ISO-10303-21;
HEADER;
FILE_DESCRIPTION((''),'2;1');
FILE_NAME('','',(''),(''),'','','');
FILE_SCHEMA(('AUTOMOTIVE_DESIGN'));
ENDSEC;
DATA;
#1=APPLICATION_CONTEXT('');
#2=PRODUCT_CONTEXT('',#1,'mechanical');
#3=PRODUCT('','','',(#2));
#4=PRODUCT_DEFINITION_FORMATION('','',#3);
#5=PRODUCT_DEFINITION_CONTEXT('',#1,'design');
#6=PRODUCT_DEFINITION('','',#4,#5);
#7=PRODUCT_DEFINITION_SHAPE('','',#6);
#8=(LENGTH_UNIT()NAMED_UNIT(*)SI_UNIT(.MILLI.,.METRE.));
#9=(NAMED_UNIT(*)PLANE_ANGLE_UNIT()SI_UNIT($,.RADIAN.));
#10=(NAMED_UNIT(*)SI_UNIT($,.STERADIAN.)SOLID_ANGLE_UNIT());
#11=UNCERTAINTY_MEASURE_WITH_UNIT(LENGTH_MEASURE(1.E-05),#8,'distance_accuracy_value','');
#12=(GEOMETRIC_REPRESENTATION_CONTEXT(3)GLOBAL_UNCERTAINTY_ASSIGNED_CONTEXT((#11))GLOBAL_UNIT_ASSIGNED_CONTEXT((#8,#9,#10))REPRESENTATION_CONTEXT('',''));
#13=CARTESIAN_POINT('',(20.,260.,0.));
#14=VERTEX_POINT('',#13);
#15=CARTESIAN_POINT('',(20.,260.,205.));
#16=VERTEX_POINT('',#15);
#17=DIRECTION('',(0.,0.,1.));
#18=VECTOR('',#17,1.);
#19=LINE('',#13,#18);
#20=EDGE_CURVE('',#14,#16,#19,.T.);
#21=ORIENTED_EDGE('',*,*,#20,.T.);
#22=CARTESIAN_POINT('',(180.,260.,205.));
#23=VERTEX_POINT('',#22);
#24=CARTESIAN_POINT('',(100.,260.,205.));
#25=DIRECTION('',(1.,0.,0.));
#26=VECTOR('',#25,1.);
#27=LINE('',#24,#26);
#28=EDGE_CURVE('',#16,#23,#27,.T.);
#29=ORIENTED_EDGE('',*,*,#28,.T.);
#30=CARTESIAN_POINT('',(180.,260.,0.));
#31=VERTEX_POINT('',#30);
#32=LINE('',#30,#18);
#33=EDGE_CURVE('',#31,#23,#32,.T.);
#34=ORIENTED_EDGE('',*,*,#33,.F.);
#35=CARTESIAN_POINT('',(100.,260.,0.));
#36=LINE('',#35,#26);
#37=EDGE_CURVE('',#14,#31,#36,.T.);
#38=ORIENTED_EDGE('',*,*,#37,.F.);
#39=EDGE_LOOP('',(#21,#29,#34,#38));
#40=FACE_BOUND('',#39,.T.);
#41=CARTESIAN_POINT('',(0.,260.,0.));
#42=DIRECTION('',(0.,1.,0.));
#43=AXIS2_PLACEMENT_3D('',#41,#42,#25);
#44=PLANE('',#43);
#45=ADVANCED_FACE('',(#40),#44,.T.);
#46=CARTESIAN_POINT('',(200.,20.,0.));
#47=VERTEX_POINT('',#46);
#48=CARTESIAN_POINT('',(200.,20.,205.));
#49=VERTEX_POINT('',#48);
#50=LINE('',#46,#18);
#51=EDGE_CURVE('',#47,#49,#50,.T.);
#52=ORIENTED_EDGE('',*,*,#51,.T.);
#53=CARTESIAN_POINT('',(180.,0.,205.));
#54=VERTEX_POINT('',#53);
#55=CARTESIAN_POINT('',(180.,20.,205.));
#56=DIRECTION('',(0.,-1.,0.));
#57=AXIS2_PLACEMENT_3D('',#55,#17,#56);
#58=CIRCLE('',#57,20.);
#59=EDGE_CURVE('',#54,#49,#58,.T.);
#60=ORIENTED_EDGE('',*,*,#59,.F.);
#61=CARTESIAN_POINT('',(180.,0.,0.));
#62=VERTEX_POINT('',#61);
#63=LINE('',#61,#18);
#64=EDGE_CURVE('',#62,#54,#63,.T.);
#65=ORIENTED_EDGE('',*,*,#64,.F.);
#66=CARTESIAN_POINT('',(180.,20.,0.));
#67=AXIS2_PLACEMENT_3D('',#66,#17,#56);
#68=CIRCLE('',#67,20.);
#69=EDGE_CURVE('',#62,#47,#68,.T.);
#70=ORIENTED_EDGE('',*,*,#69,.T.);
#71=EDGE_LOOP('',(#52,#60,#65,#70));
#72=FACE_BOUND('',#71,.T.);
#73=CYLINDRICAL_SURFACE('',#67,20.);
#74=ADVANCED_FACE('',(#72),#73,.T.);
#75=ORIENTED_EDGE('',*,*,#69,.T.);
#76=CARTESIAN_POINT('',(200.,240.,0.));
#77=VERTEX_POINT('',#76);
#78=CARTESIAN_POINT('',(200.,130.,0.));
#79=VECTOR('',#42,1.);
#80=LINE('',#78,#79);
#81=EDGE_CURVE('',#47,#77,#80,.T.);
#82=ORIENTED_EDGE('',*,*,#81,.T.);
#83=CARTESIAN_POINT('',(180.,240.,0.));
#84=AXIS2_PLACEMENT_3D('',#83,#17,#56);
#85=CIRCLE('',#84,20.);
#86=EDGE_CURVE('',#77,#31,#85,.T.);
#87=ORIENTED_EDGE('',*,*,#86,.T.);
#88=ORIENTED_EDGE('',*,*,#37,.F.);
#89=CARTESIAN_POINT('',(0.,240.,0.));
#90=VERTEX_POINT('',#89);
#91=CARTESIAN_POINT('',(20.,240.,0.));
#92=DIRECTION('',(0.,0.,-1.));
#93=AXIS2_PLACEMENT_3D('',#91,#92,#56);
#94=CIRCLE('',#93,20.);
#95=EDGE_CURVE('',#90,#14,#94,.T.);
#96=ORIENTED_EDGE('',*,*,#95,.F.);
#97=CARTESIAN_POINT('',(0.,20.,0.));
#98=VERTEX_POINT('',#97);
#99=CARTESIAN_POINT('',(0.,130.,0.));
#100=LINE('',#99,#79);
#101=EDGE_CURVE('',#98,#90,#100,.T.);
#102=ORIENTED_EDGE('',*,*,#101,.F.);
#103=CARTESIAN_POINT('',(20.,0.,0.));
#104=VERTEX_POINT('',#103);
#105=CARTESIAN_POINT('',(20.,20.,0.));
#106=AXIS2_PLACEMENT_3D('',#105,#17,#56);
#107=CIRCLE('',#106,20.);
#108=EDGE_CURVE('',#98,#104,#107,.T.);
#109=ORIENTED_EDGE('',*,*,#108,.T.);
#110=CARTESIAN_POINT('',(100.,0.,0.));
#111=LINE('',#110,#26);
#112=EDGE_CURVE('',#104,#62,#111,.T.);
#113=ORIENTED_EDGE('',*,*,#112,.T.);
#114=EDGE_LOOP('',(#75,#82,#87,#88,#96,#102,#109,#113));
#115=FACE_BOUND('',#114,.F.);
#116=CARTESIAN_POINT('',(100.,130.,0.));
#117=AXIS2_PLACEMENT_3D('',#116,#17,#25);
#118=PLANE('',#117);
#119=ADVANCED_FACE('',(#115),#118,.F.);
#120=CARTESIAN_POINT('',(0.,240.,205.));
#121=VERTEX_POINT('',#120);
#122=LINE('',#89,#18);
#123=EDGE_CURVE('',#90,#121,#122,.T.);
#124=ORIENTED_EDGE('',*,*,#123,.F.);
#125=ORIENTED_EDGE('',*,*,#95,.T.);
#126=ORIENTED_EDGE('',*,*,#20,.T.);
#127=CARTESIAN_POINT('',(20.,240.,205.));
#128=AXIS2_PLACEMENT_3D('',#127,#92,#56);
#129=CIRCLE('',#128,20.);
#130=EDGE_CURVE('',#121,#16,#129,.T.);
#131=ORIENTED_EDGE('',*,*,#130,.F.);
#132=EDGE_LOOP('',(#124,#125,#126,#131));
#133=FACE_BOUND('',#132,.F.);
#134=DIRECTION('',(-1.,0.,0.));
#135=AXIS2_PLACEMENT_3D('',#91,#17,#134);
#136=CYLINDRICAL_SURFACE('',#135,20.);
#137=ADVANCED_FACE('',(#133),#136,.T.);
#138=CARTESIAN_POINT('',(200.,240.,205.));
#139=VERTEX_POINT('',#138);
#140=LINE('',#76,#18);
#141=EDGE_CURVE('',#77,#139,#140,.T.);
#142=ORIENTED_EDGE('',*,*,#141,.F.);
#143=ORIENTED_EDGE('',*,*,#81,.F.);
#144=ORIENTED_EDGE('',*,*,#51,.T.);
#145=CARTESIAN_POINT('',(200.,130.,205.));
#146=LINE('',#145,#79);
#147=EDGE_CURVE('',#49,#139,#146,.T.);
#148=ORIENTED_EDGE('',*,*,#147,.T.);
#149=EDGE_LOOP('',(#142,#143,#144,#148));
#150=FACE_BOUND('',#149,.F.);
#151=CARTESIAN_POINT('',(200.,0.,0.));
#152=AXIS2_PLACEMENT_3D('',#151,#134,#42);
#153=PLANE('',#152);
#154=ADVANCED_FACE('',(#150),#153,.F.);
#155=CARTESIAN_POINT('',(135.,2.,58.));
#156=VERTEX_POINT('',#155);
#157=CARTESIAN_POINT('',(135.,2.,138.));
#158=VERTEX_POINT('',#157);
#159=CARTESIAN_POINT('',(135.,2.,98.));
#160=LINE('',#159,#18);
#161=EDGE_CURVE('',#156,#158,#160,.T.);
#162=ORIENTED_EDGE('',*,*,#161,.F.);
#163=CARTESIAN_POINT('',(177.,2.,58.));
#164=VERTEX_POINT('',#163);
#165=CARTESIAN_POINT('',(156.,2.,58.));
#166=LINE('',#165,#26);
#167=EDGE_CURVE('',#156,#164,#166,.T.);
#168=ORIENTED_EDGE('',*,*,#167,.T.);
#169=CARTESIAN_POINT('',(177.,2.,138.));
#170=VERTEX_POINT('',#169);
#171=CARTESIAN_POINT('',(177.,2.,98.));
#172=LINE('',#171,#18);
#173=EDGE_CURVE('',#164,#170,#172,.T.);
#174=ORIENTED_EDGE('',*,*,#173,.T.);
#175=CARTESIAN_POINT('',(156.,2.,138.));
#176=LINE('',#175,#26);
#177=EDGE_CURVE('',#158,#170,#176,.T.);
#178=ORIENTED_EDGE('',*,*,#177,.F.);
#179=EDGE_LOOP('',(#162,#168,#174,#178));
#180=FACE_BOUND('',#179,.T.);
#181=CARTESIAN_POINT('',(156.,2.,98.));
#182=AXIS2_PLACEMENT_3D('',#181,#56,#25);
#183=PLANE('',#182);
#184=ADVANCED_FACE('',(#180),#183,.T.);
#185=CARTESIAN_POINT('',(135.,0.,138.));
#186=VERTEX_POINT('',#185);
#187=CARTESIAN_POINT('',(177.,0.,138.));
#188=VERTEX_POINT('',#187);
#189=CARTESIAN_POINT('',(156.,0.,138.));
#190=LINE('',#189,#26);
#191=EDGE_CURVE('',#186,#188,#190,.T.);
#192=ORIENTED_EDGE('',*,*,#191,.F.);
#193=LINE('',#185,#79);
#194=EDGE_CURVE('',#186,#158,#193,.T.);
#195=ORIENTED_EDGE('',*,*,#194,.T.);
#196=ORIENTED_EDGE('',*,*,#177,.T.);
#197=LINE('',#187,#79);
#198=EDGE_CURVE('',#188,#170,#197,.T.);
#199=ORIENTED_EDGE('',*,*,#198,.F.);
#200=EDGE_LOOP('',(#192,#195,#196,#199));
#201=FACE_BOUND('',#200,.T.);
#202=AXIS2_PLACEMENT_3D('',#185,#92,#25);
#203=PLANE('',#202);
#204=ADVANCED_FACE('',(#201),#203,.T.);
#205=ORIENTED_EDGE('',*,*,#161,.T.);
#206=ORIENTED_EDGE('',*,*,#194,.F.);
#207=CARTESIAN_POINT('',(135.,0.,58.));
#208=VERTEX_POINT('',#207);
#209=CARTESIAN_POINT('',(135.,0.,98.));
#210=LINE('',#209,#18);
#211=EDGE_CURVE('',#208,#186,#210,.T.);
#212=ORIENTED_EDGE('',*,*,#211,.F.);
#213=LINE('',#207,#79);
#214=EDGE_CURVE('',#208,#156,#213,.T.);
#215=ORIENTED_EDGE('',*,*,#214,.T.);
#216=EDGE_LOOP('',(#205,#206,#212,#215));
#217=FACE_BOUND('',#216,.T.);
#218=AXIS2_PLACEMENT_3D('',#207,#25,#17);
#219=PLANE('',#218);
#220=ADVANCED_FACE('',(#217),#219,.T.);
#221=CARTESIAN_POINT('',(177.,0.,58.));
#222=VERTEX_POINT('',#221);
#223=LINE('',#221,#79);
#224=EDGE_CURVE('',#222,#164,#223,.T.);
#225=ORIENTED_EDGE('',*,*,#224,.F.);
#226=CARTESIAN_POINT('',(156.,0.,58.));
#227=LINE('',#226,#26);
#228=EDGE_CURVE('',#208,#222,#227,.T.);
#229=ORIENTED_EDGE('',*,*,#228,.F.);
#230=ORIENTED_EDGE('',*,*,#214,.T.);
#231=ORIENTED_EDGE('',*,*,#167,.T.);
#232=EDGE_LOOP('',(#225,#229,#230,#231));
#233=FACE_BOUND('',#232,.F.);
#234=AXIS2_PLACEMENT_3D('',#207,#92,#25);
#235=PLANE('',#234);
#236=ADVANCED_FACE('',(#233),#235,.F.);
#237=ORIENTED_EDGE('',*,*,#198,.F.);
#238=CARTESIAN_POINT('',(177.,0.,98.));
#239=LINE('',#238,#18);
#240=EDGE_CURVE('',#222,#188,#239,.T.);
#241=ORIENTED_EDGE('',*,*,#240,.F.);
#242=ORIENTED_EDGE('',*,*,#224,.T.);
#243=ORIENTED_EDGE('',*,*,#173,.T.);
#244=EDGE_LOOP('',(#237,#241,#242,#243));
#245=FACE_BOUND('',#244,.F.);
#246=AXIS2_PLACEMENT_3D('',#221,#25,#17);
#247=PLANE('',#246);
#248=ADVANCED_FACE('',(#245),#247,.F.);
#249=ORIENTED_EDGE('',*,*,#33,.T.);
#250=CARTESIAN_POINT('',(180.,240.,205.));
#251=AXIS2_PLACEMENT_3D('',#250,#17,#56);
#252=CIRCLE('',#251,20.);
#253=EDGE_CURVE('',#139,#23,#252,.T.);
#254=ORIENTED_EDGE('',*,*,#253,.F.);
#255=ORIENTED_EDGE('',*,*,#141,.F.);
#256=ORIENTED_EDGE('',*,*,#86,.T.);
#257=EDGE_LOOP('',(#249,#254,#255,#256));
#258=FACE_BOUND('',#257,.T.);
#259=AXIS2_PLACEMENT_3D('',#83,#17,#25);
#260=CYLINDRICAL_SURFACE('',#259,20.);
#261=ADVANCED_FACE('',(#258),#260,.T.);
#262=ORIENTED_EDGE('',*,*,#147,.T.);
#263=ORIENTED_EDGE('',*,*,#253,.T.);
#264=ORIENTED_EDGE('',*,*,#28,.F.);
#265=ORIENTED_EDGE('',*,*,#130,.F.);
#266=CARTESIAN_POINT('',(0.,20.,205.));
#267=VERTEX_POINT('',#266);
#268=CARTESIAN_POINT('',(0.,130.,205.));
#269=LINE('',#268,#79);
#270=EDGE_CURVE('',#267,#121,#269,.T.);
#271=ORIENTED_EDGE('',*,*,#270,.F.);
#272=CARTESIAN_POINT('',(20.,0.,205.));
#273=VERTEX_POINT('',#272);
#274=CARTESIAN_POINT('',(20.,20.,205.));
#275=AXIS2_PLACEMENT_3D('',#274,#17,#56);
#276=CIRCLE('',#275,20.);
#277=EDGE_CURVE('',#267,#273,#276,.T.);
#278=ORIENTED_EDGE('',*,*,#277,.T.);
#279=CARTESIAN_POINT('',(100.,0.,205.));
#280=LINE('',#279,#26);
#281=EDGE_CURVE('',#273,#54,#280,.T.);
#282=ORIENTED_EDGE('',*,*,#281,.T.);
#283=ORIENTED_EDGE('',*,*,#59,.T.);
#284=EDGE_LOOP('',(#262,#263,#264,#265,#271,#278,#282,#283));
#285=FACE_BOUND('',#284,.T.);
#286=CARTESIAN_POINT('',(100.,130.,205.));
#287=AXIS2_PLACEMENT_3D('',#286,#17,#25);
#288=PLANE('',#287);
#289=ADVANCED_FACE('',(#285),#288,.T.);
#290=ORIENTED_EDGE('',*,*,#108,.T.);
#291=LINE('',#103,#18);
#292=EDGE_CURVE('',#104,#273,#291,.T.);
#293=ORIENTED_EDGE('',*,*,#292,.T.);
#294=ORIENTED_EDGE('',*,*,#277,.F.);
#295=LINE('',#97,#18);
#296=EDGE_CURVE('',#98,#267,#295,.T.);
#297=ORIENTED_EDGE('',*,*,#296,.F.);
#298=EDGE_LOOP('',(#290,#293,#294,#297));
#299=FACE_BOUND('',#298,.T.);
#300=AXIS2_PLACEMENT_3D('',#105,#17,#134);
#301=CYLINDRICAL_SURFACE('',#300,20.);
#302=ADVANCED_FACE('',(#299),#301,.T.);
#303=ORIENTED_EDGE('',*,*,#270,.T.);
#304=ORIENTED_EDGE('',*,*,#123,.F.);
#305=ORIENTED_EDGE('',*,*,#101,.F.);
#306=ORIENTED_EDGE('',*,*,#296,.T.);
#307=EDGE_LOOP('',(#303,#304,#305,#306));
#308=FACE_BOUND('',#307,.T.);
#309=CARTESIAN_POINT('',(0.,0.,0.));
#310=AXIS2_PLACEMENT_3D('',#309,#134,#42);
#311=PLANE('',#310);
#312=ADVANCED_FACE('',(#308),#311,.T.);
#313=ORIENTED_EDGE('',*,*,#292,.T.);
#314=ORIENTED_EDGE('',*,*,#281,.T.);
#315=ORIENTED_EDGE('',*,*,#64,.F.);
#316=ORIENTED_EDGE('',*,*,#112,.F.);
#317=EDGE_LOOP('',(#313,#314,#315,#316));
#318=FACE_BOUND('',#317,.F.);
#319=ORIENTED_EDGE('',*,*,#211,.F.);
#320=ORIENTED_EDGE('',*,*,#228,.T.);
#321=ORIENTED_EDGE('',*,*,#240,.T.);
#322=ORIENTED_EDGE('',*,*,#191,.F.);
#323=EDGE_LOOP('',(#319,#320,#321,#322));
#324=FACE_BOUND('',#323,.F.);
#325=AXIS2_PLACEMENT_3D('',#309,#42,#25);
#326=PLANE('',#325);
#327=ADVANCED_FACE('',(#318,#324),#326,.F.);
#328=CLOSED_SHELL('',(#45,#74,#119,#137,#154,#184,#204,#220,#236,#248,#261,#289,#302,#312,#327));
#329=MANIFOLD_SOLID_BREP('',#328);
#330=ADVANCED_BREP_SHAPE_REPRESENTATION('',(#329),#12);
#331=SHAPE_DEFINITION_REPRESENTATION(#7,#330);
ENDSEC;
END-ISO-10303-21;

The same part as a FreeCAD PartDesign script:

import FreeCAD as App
import Part
import Sketcher
Q = App.Units.Quantity


def edges_at(feature, points):
    """Names of the edges that pass closest to the given points."""
    edges = feature.Shape.Edges
    near = lambda p: min(range(len(edges)), key=lambda i: edges[i].distToShape(Part.Vertex(*p))[0])
    return sorted({f"Edge{near(p) + 1}" for p in points})


def add_polygon(sketch, points):
    """Adds a closed chain of lines whose ends are joined by coincident constraints."""
    first, n = sketch.GeometryCount, len(points)
    for a, b in zip(points, points[1:] + points[:1]):
        sketch.addGeometry(Part.LineSegment(App.Vector(*a, 0), App.Vector(*b, 0)), False)
    for i in range(n):
        sketch.addConstraint(Sketcher.Constraint("Coincident", first + i, 2, first + (i + 1) % n, 1))

doc = App.newDocument("Part")
params = doc.addObject("Spreadsheet::Sheet", "Params")
for row, (alias, value) in enumerate([
    ("sketch1_width", "200 mm"),
    ("sketch1_height", "260 mm"),
    ("pad1_length", "205 mm"),
    ("fillet_radius", "20 mm"),
    ("sketch2_width", "42 mm"),
    ("sketch2_height", "80 mm"),
    ("pocket1_length", "2 mm"),
], start=1):
    params.set(f"A{row}", alias)
    params.set(f"B{row}", "=" + value)
    params.setAlias(f"B{row}", alias)

body = doc.addObject("PartDesign::Body", "Body")

# Sketch on XY plane
sketch1 = doc.addObject("Sketcher::SketchObject", "Sketch")
body.addObject(sketch1)
sketch1.AttachmentSupport = (doc.XY_Plane, [""])
sketch1.MapMode = "FlatFace"
add_polygon(sketch1, [(0, 260), (0, 0), (200, 0), (200, 260)])  # lines 0-3
sketch1.addConstraint([
    Sketcher.Constraint("Vertical", 0),
    Sketcher.Constraint("Horizontal", 1),
    Sketcher.Constraint("Vertical", 2),
    Sketcher.Constraint("Horizontal", 3),
    Sketcher.Constraint("Coincident", 0, 2, -1, 1),
    Sketcher.Constraint("DistanceX", 1, 1, 1, 2, Q("200 mm")),
    Sketcher.Constraint("DistanceY", 0, 2, 0, 1, Q("260 mm")),
])
sketch1.setExpression("Constraints[9]", "Params.sketch1_width")
sketch1.setExpression("Constraints[10]", "Params.sketch1_height")
pad1 = doc.addObject("PartDesign::Pad", "Pad")
body.addObject(pad1)
pad1.Profile = sketch1
pad1.setExpression("Length", "Params.pad1_length")
doc.recompute()

fillet = doc.addObject("PartDesign::Fillet", "Fillet")
body.addObject(fillet)
fillet.Base = (pad1, edges_at(pad1, [
    (0, 0, 102.5),
    (0, 260, 102.5),
    (200, 260, 102.5),
    (200, 0, 102.5),
]))
fillet.setExpression("Radius", "Params.fillet_radius")

# Sketch on XZ plane
sketch2 = doc.addObject("Sketcher::SketchObject", "Sketch001")
body.addObject(sketch2)
sketch2.AttachmentSupport = (doc.XZ_Plane, [""])
sketch2.MapMode = "FlatFace"
add_polygon(sketch2, [(135, 138), (135, 58), (177, 58), (177, 138)])  # lines 0-3
sketch2.addConstraint([
    Sketcher.Constraint("Vertical", 0),
    Sketcher.Constraint("Horizontal", 1),
    Sketcher.Constraint("Vertical", 2),
    Sketcher.Constraint("Horizontal", 3),
    Sketcher.Constraint("DistanceX", 1, 1, 1, 2, Q("42 mm")),
    Sketcher.Constraint("DistanceY", 0, 2, 0, 1, Q("80 mm")),
    Sketcher.Constraint("DistanceX", -1, 1, 0, 2, Q("135 mm")),
    Sketcher.Constraint("DistanceY", -1, 1, 0, 2, Q("58 mm")),
])
sketch2.setExpression("Constraints[8]", "Params.sketch2_width")
sketch2.setExpression("Constraints[9]", "Params.sketch2_height")
pocket1 = doc.addObject("PartDesign::Pocket", "Pocket")
body.addObject(pocket1)
pocket1.Profile = sketch2
pocket1.setExpression("Length", "Params.pocket1_length")

doc.recompute()
